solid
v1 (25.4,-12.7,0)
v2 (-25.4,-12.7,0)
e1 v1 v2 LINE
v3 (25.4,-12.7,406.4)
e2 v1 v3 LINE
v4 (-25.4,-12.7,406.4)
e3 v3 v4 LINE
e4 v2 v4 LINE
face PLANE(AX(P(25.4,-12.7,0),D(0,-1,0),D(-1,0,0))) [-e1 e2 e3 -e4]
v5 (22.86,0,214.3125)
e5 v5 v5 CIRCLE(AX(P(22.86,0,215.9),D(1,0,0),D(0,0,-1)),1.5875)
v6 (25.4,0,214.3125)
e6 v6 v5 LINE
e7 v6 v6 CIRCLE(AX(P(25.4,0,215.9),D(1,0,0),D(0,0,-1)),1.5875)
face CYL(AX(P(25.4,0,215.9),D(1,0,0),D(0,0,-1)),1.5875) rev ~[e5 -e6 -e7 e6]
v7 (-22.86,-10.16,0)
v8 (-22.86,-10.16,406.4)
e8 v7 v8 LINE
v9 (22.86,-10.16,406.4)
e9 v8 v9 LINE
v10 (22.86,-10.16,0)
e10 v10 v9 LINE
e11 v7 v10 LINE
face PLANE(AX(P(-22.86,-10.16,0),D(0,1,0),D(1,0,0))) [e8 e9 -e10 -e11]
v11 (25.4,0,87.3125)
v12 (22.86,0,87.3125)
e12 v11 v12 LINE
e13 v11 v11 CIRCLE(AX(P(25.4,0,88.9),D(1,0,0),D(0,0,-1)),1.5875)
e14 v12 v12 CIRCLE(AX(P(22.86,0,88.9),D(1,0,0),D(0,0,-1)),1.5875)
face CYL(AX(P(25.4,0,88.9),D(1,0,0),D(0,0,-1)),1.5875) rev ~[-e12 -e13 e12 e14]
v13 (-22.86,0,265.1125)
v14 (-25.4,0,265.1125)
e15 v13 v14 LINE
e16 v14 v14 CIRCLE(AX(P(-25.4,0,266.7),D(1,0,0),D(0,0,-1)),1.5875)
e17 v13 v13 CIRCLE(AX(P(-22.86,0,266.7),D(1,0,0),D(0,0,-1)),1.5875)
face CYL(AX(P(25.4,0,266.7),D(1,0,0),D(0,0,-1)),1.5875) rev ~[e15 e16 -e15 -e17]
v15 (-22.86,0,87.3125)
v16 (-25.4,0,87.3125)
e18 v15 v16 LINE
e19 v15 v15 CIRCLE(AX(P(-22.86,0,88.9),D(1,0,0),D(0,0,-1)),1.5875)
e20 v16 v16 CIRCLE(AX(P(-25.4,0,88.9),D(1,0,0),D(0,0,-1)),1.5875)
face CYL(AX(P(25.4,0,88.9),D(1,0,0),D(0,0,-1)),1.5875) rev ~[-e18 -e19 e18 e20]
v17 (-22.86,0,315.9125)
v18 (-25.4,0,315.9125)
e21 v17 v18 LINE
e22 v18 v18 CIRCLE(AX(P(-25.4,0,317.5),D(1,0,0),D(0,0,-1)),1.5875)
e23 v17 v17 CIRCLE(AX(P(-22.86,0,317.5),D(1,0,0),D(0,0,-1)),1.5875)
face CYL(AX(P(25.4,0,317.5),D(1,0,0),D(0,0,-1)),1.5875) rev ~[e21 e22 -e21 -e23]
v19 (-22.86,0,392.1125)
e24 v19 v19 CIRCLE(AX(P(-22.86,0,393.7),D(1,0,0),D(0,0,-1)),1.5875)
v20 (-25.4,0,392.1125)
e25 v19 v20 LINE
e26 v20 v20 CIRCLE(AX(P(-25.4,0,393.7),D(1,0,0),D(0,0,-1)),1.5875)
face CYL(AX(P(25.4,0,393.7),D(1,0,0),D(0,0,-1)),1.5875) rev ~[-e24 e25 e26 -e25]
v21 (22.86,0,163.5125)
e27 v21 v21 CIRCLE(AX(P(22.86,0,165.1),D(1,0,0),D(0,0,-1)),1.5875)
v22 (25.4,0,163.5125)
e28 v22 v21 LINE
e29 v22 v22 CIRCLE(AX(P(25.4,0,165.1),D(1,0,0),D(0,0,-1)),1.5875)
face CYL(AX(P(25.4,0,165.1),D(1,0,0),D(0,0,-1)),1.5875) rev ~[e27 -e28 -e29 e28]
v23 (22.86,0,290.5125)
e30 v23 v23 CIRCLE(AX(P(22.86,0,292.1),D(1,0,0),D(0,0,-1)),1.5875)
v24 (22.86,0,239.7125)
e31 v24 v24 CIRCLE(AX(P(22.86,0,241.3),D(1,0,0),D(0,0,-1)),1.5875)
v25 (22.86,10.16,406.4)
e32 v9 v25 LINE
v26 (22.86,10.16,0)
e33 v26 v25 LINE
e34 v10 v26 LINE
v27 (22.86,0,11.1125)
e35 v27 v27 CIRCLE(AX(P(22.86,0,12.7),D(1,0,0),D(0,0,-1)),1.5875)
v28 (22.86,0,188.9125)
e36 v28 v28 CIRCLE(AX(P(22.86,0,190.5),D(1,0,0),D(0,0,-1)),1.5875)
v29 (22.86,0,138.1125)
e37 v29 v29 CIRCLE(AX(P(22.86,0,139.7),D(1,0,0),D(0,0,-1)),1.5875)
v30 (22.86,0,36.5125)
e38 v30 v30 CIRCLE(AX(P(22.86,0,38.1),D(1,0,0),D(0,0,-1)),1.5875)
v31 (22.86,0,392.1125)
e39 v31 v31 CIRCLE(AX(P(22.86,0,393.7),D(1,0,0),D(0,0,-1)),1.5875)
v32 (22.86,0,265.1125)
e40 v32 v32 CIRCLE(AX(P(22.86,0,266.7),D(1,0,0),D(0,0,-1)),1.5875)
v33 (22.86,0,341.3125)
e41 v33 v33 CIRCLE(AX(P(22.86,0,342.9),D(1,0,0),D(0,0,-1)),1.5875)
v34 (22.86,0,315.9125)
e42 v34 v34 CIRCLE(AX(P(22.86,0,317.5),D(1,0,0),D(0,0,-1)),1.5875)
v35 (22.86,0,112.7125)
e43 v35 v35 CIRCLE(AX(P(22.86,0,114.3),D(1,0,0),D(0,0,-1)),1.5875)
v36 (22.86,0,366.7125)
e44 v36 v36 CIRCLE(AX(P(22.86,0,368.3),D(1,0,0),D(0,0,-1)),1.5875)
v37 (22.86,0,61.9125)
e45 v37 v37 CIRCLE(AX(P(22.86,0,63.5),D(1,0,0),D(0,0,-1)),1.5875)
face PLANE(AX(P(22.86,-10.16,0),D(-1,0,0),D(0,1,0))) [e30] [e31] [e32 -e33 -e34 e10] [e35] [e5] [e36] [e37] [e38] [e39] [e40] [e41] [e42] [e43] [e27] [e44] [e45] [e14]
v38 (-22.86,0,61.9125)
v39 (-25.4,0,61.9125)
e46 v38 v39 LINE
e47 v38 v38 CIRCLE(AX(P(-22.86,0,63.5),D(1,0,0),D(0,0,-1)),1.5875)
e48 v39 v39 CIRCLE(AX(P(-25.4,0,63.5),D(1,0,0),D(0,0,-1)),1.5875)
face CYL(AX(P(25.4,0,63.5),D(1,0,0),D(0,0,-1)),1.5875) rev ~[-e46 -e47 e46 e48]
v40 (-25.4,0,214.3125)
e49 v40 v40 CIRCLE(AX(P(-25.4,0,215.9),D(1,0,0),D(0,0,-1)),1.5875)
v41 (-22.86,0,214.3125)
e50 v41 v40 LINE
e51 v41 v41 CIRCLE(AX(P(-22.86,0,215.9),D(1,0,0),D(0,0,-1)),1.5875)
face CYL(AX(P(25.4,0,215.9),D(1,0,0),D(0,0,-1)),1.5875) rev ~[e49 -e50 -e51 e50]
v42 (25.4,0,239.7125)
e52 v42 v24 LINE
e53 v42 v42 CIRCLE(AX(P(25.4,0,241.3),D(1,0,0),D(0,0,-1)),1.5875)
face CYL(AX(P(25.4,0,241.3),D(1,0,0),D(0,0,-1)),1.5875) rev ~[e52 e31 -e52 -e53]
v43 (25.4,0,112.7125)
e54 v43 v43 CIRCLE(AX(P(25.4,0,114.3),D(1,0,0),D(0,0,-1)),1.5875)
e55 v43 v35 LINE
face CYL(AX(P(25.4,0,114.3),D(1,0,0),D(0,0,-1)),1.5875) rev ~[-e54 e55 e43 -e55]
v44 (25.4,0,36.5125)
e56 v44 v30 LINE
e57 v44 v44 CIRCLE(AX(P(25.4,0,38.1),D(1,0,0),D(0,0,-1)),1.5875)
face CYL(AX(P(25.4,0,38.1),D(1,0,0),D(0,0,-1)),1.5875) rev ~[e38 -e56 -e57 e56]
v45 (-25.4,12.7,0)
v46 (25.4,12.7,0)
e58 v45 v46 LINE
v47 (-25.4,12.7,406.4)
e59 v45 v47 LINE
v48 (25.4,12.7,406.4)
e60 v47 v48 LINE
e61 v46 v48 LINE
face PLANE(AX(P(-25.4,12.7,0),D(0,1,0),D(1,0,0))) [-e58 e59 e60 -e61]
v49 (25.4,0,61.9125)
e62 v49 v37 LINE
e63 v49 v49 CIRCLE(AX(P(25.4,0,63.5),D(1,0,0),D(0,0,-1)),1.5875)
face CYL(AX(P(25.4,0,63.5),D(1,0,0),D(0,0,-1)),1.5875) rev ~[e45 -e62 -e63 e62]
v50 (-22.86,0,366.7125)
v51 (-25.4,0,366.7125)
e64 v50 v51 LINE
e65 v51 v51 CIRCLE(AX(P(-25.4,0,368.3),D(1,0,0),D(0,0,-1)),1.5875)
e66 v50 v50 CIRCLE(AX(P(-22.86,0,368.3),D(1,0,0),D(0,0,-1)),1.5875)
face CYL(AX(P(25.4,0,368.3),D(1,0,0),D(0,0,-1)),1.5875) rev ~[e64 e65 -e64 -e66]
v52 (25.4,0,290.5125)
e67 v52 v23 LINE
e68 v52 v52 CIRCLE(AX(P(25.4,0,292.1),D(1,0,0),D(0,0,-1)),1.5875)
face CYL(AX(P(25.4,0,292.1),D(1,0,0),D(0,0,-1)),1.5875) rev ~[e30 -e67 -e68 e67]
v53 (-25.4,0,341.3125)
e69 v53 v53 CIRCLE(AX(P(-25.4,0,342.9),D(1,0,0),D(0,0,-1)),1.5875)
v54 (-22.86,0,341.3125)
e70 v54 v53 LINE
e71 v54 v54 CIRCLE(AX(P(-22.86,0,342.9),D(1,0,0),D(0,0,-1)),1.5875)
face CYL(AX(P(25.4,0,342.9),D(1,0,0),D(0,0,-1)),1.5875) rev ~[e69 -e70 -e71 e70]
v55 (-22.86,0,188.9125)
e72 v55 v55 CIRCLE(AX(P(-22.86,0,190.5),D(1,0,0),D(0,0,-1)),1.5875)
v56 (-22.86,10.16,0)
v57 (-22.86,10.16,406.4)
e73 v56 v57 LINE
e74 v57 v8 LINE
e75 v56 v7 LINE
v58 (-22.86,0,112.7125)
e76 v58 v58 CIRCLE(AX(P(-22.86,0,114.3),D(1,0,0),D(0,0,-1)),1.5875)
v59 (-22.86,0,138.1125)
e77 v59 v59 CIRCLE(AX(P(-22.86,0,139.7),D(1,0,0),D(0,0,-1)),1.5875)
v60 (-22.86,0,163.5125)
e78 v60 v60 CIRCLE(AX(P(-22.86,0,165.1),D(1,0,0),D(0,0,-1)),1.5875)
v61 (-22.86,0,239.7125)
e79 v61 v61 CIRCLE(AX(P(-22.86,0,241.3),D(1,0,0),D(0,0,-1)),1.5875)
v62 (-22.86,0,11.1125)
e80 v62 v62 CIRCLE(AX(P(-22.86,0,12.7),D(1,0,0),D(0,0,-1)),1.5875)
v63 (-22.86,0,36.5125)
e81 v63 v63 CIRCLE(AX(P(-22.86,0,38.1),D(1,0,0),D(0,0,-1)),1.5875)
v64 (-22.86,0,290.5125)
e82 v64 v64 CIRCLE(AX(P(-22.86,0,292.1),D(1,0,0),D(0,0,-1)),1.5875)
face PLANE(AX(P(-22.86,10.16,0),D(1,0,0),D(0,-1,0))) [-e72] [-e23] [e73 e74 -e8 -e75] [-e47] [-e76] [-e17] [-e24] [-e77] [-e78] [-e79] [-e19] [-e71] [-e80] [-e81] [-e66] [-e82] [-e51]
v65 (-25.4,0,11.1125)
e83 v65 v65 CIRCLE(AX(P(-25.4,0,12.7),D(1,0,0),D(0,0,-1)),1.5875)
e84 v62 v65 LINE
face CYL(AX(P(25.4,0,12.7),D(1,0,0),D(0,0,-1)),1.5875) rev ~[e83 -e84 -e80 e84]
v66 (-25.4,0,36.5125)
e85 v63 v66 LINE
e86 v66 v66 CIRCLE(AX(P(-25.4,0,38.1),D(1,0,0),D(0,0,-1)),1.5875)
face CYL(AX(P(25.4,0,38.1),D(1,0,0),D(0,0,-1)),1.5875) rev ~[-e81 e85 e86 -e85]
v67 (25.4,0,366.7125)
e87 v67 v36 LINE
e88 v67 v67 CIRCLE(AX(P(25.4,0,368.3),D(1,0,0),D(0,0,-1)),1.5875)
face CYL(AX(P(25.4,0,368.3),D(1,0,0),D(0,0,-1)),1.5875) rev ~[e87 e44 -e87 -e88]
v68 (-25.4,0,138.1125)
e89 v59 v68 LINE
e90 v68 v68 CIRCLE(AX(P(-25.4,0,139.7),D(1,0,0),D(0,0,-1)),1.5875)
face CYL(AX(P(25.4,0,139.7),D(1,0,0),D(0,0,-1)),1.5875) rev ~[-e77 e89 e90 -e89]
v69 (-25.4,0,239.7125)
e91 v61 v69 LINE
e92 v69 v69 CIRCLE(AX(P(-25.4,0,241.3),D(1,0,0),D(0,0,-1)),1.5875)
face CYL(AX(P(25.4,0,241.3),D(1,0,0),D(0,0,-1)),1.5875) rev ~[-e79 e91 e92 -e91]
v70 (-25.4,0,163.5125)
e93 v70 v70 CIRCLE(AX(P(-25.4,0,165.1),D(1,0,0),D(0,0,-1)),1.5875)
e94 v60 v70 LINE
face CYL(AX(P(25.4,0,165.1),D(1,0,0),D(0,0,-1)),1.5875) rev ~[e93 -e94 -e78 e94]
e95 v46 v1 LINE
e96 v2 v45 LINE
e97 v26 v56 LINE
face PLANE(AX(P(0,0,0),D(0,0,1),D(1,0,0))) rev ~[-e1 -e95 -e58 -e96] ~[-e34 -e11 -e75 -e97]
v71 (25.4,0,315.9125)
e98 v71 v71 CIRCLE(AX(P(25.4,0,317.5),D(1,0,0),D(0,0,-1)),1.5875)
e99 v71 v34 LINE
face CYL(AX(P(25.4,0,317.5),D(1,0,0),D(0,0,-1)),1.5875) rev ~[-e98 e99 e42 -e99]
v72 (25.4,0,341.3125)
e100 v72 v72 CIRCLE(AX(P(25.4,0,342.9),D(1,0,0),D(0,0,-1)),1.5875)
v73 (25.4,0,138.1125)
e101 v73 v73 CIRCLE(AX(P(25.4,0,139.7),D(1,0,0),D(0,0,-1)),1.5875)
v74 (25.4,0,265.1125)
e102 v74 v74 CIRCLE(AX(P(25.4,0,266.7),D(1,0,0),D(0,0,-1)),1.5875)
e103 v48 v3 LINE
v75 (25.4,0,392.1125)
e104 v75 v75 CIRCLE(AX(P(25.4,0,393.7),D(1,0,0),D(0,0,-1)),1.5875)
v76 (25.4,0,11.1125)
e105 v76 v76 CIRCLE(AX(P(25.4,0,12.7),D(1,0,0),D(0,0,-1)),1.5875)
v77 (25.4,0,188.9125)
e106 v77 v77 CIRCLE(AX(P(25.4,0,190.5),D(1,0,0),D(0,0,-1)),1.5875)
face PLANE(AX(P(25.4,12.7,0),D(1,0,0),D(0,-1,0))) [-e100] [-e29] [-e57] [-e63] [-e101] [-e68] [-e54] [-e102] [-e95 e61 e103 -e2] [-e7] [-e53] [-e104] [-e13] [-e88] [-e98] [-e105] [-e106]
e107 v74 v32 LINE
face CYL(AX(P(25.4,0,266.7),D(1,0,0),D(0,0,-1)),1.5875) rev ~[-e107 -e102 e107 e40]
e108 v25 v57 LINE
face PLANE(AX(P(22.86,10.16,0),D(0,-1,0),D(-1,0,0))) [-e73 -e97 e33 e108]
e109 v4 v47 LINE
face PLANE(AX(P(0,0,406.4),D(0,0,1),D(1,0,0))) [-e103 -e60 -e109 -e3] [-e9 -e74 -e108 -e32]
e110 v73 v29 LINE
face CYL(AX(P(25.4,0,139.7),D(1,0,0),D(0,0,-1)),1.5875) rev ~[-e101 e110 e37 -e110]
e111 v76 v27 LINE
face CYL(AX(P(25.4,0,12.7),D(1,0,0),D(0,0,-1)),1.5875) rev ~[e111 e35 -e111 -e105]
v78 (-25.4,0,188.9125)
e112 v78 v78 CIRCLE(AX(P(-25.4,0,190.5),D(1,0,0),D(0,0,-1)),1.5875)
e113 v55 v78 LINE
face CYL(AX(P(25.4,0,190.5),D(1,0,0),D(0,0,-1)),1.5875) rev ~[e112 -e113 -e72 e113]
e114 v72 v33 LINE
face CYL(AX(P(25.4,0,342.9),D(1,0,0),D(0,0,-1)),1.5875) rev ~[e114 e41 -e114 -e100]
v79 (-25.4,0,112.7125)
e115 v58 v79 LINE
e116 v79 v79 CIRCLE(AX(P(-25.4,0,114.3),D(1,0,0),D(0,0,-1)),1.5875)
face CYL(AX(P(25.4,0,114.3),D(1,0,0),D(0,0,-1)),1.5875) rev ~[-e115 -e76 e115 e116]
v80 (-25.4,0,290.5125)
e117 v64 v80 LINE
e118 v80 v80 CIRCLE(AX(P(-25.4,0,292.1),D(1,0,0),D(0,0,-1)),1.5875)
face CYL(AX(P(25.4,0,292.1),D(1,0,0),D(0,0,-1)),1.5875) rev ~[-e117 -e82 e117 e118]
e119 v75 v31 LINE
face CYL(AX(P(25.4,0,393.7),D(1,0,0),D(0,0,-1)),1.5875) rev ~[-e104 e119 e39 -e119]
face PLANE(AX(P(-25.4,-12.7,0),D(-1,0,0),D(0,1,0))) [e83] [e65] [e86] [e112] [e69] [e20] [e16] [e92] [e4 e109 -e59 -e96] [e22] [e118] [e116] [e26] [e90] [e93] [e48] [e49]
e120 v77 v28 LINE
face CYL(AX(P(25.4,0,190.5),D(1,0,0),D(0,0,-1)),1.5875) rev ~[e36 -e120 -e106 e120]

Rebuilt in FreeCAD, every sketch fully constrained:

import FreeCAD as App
import Part
import Sketcher
Q = App.Units.Quantity


def add_polygon(sketch, points):
    """Adds a closed chain of lines whose ends are joined by coincident constraints."""
    first, n = sketch.GeometryCount, len(points)
    for a, b in zip(points, points[1:] + points[:1]):
        sketch.addGeometry(Part.LineSegment(App.Vector(*a, 0), App.Vector(*b, 0)), False)
    for i in range(n):
        sketch.addConstraint(Sketcher.Constraint("Coincident", first + i, 2, first + (i + 1) % n, 1))

doc = App.newDocument("Part")
body = doc.addObject("PartDesign::Body", "Body")

sketch1 = body.newObject("Sketcher::SketchObject", "Sketch")
sketch1.AttachmentSupport = (doc.getObject("XY_Plane"), [""])
sketch1.MapMode = "FlatFace"
add_polygon(sketch1, [(25, 13), (-25, 13), (-25, -13), (25, -13)])
add_polygon(sketch1, [(-23, 10), (23, 10), (23, -10), (-23, -10)])
sketch1.addConstraint([
    Sketcher.Constraint("Horizontal", 0),
    Sketcher.Constraint("Vertical", 1),
    Sketcher.Constraint("Horizontal", 2),
    Sketcher.Constraint("Vertical", 3),
    Sketcher.Constraint("Horizontal", 4),
    Sketcher.Constraint("Vertical", 5),
    Sketcher.Constraint("Horizontal", 6),
    Sketcher.Constraint("Vertical", 7),
    Sketcher.Constraint("Symmetric", 0, 2, 2, 2, -1, 1),
    Sketcher.Constraint("Symmetric", 4, 2, 6, 2, -1, 1),
    Sketcher.Constraint("DistanceX", 0, 2, 0, 1, Q("2 in")),
    Sketcher.Constraint("DistanceY", 1, 2, 1, 1, Q("1 in")),
    Sketcher.Constraint("DistanceX", 4, 2, 3, 2, Q("0.1 in")),
    Sketcher.Constraint("DistanceY", 4, 2, 3, 2, Q("0.1 in")),
])
pad1 = body.newObject("PartDesign::Pad", "Pad")
pad1.Profile = sketch1
pad1.Length = Q("16 in")

sketch2 = body.newObject("Sketcher::SketchObject", "Sketch001")
sketch2.AttachmentSupport = (doc.getObject("YZ_Plane"), [""])
sketch2.MapMode = "FlatFace"
sketch2.AttachmentOffset = App.Placement(App.Vector(0, 0, 1 * 25.4), App.Rotation())
sketch2.addGeometry(Part.Circle(App.Vector(0, 12.7, 0), App.Vector(0, 0, 1), 1.6), False)
sketch2.addConstraint([
    Sketcher.Constraint("PointOnObject", 0, 3, -2),
    Sketcher.Constraint("Diameter", 0, Q("0.125 in")),
    Sketcher.Constraint("DistanceY", -1, 1, 0, 3, Q("0.5 in")),
])
pocket1 = body.newObject("PartDesign::Pocket", "Pocket")
pocket1.Profile = sketch2
pocket1.Type = "ThroughAll"
doc.recompute()

linearpattern = body.newObject("PartDesign::LinearPattern", "LinearPattern")
linearpattern.Originals = [pocket1]
linearpattern.Direction = (doc.getObject("Z_Axis"), [""])
linearpattern.Mode = "offset"
linearpattern.Offset = Q("1 in")
linearpattern.Occurrences = 36
body.Tip = linearpattern

doc.recompute()
